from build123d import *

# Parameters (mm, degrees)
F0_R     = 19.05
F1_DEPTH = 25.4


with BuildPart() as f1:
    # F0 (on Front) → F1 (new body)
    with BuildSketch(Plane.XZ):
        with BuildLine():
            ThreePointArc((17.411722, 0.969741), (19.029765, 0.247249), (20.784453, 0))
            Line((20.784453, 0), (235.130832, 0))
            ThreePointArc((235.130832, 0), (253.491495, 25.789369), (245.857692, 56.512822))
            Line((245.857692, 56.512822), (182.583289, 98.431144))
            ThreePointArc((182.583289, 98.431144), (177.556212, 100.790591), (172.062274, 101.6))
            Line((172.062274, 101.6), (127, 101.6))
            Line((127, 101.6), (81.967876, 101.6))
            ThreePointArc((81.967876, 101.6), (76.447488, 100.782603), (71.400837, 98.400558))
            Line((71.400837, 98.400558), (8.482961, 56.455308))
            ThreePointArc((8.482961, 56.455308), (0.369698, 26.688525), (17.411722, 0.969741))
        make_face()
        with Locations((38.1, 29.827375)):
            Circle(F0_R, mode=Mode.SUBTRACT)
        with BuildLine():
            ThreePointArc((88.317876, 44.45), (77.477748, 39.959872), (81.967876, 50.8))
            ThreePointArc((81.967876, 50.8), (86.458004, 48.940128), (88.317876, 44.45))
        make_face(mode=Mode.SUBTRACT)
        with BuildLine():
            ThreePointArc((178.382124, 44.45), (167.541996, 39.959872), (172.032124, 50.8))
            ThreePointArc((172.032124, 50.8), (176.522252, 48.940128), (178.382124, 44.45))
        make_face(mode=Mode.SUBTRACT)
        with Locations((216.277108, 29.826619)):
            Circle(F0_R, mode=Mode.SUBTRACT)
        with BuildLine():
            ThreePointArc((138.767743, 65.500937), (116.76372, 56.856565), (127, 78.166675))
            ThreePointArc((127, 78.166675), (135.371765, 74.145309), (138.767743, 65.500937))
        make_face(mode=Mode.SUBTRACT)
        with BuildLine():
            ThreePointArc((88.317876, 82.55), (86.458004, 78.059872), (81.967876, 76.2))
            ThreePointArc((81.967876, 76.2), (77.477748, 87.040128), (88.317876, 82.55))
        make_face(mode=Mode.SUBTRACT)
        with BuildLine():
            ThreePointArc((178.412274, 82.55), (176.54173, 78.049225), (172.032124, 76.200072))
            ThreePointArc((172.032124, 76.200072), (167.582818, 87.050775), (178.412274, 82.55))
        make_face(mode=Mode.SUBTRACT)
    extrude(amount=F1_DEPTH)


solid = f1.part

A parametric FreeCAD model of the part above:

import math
import FreeCAD as App
import Part
import Sketcher
Q = App.Units.Quantity

doc = App.newDocument("Part")
body = doc.addObject("PartDesign::Body", "Body")

# Sketch on XZ plane
sketch1 = doc.addObject("Sketcher::SketchObject", "Sketch")
body.addObject(sketch1)
sketch1.AttachmentSupport = (doc.XZ_Plane, [""])
sketch1.MapMode = "FlatFace"
sketch1.addGeometry(Part.ArcOfCircle(Part.Circle(App.Vector(20.8, 6.4, 0), App.Vector(0, 0, 1), 6.4), math.radians(-122), math.radians(-90)), False)
sketch1.addGeometry(Part.LineSegment(App.Vector(20.8, 0, 0), App.Vector(235.1, 0, 0)), False)
sketch1.addGeometry(Part.ArcOfCircle(Part.Circle(App.Vector(216.3, 32.9, 0), App.Vector(0, 0, 1), 37.9), math.radians(-60), math.radians(39)), False)
sketch1.addGeometry(Part.LineSegment(App.Vector(245.9, 56.5, 0), App.Vector(182.6, 98.4, 0)), False)
sketch1.addGeometry(Part.ArcOfCircle(Part.Circle(App.Vector(172.1, 82.6, 0), App.Vector(0, 0, 1), 19), math.radians(56), math.radians(90)), False)
sketch1.addGeometry(Part.LineSegment(App.Vector(172.1, 101.6, 0), App.Vector(82, 101.6, 0)), False)
sketch1.addGeometry(Part.ArcOfCircle(Part.Circle(App.Vector(82, 82.5, 0), App.Vector(0, 0, 1), 19.1), math.radians(90), math.radians(124)), False)
sketch1.addGeometry(Part.LineSegment(App.Vector(71.4, 98.4, 0), App.Vector(8.5, 56.5, 0)), False)
sketch1.addGeometry(Part.ArcOfCircle(Part.Circle(App.Vector(37.3, 32.6, 0), App.Vector(0, 0, 1), 37.4), math.radians(140), math.radians(238)), False)
sketch1.addGeometry(Part.Circle(App.Vector(38.1, 29.8, 0), App.Vector(0, 0, 1), 19.1), False)
sketch1.addGeometry(Part.ArcOfCircle(Part.Circle(App.Vector(82, 44.4, 0), App.Vector(0, 0, 1), 6.4), math.radians(0), math.radians(90)), False)
sketch1.addGeometry(Part.ArcOfCircle(Part.Circle(App.Vector(82, 44.5, 0), App.Vector(0, 0, 1), 6.3), math.radians(90), math.radians(360)), False)
sketch1.addGeometry(Part.Circle(App.Vector(216.3, 29.8, 0), App.Vector(0, 0, 1), 19.1), False)
sketch1.addGeometry(Part.ArcOfCircle(Part.Circle(App.Vector(172, 44.4, 0), App.Vector(0, 0, 1), 6.4), math.radians(0), math.radians(90)), False)
sketch1.addGeometry(Part.ArcOfCircle(Part.Circle(App.Vector(172, 44.5, 0), App.Vector(0, 0, 1), 6.3), math.radians(90), math.radians(360)), False)
sketch1.addGeometry(Part.ArcOfCircle(Part.Circle(App.Vector(126.1, 65.5, 0), App.Vector(0, 0, 1), 12.7), math.radians(0), math.radians(86)), False)
sketch1.addGeometry(Part.ArcOfCircle(Part.Circle(App.Vector(126.1, 65.5, 0), App.Vector(0, 0, 1), 12.7), math.radians(86), math.radians(360)), False)
sketch1.addGeometry(Part.ArcOfCircle(Part.Circle(App.Vector(82, 82.5, 0), App.Vector(0, 0, 1), 6.3), math.radians(0), math.radians(270)), False)
sketch1.addGeometry(Part.ArcOfCircle(Part.Circle(App.Vector(82, 82.6, 0), App.Vector(0, 0, 1), 6.4), math.radians(-90), math.radians(0)), False)
sketch1.addGeometry(Part.ArcOfCircle(Part.Circle(App.Vector(172.1, 82.6, 0), App.Vector(0, 0, 1), 6.3), math.radians(0), math.radians(270)), False)
sketch1.addGeometry(Part.ArcOfCircle(Part.Circle(App.Vector(172.1, 82.5, 0), App.Vector(0, 0, 1), 6.3), math.radians(-90), math.radians(0)), False)
sketch1.addConstraint(Sketcher.Constraint("Tangent", 0, 2, 1, 1))
sketch1.addConstraint(Sketcher.Constraint("Coincident", 1, 2, 2, 1))
sketch1.addConstraint(Sketcher.Constraint("Coincident", 2, 2, 3, 1))
sketch1.addConstraint(Sketcher.Constraint("Tangent", 3, 2, 4, 1))
sketch1.addConstraint(Sketcher.Constraint("Tangent", 4, 2, 5, 1))
sketch1.addConstraint(Sketcher.Constraint("Tangent", 5, 2, 6, 1))
sketch1.addConstraint(Sketcher.Constraint("Tangent", 6, 2, 7, 1))
sketch1.addConstraint(Sketcher.Constraint("Coincident", 7, 2, 8, 1))
sketch1.addConstraint(Sketcher.Constraint("Tangent", 8, 2, 0, 1))
sketch1.addConstraint(Sketcher.Constraint("Tangent", 10, 1, 11, 2))
sketch1.addConstraint(Sketcher.Constraint("Coincident", 11, 1, 10, 2))
sketch1.addConstraint(Sketcher.Constraint("Tangent", 13, 1, 14, 2))
sketch1.addConstraint(Sketcher.Constraint("Coincident", 14, 1, 13, 2))
sketch1.addConstraint(Sketcher.Constraint("Tangent", 15, 1, 16, 2))
sketch1.addConstraint(Sketcher.Constraint("Coincident", 16, 1, 15, 2))
sketch1.addConstraint(Sketcher.Constraint("Tangent", 17, 1, 18, 2))
sketch1.addConstraint(Sketcher.Constraint("Coincident", 18, 1, 17, 2))
sketch1.addConstraint(Sketcher.Constraint("Tangent", 19, 1, 20, 2))
sketch1.addConstraint(Sketcher.Constraint("Coincident", 20, 1, 19, 2))
sketch1.addConstraint(Sketcher.Constraint("Horizontal", 1))
sketch1.addConstraint(Sketcher.Constraint("Horizontal", 5))
sketch1.addConstraint(Sketcher.Constraint("Coincident", 17, 3, 6, 3))
sketch1.addConstraint(Sketcher.Constraint("Equal", 0, 10))
sketch1.addConstraint(Sketcher.Constraint("Equal", 9, 12))
sketch1.addConstraint(Sketcher.Constraint("Equal", 11, 13))
sketch1.addConstraint(Sketcher.Constraint("Equal", 14, 17))
sketch1.addConstraint(Sketcher.Constraint("Equal", 18, 19))
sketch1.addConstraint(Sketcher.Constraint("PointOnObject", 0, 2, -1))
sketch1.addConstraint(Sketcher.Constraint("Horizontal", 11, 3, 13, 3))
sketch1.addConstraint(Sketcher.Constraint("Horizontal", 18, 3, 19, 3))
sketch1.addConstraint(Sketcher.Constraint("Horizontal", 14, 3, 10, 1))
sketch1.addConstraint(Sketcher.Constraint("Horizontal", 10, 1, 13, 1))
sketch1.addConstraint(Sketcher.Constraint("Horizontal", 16, 3, 15, 1))
sketch1.addConstraint(Sketcher.Constraint("Horizontal", 20, 3, 17, 1))
sketch1.addConstraint(Sketcher.Constraint("Horizontal", 17, 1, 19, 1))
sketch1.addConstraint(Sketcher.Constraint("Vertical", 6, 3, 10, 3))
sketch1.addConstraint(Sketcher.Constraint("Vertical", 4, 3, 20, 3))
sketch1.addConstraint(Sketcher.Constraint("Vertical", 5, 2, 11, 1))
sketch1.addConstraint(Sketcher.Constraint("Vertical", 13, 3, 14, 1))
sketch1.addConstraint(Sketcher.Constraint("Vertical", 11, 1, 18, 1))
sketch1.addConstraint(Sketcher.Constraint("Vertical", 14, 1, 20, 1))
sketch1.addConstraint(Sketcher.Constraint("Diameter", 9, Q("1.5 in")))
sketch1.addConstraint(Sketcher.Constraint("Radius", 15, Q("0.5000001 in")))
sketch1.addConstraint(Sketcher.Constraint("Radius", 0, Q("0.2500001 in")))
sketch1.addConstraint(Sketcher.Constraint("Radius", 6, Q("0.7500001 in")))
sketch1.addConstraint(Sketcher.Constraint("DistanceY", -1, 1, 4, 2, Q("4 in")))
sketch1.addConstraint(Sketcher.Constraint("DistanceY", -1, 1, 11, 1, Q("2 in")))
sketch1.addConstraint(Sketcher.Constraint("DistanceX", -1, 1, 16, 1, Q("5 in")))
sketch1.addConstraint(Sketcher.Constraint("DistanceX", -1, 1, 9, 3, Q("1.5 in")))
sketch1.addConstraint(Sketcher.Constraint("Radius", 4, Q("19.049989 mm")))
sketch1.addConstraint(Sketcher.Constraint("Radius", 8, Q("37.359781 mm")))
sketch1.addConstraint(Sketcher.Constraint("DistanceX", 5, 2, 5, 1, Q("90.094398 mm")))
sketch1.addConstraint(Sketcher.Constraint("Radius", 2, Q("37.878253 mm")))
sketch1.addConstraint(Sketcher.Constraint("DistanceX", 14, 3, 3, 2, Q("0.4154002 in")))
sketch1.addConstraint(Sketcher.Constraint("DistanceX", 1, 1, 1, 2, Q("214.346379 mm")))
sketch1.addConstraint(Sketcher.Constraint("DistanceX", 0, 3, 8, 3, Q("16.470499 mm")))
sketch1.addConstraint(Sketcher.Constraint("DistanceX", -1, 1, 12, 3, Q("216.277108 mm")))
sketch1.addConstraint(Sketcher.Constraint("DistanceY", -1, 1, 12, 3, Q("29.826619 mm")))
sketch1.addConstraint(Sketcher.Constraint("DistanceX", -1, 1, 15, 3, Q("126.067741 mm")))
sketch1.addConstraint(Sketcher.Constraint("DistanceX", -1, 1, 1, 2, Q("235.130832 mm")))
sketch1.addConstraint(Sketcher.Constraint("DistanceX", -1, 1, 3, 2, Q("182.583289 mm")))
sketch1.addConstraint(Sketcher.Constraint("DistanceX", -1, 1, 7, 2, Q("8.482961 mm")))
sketch1.addConstraint(Sketcher.Constraint("DistanceX", 4, 3, 2, 3, Q("44.215419 mm")))
sketch1.addConstraint(Sketcher.Constraint("DistanceY", 2, 3, 6, 3, Q("49.69697 mm")))
sketch1.addConstraint(Sketcher.Constraint("DistanceY", 9, 3, 8, 3, Q("2.796741 mm")))
sketch1.addConstraint(Sketcher.Constraint("DistanceY", 15, 3, 6, 3, Q("17.049061 mm")))
pad1 = doc.addObject("PartDesign::Pad", "Pad")
body.addObject(pad1)
pad1.Profile = sketch1
pad1.Length = Q("1 in")

doc.recompute()
